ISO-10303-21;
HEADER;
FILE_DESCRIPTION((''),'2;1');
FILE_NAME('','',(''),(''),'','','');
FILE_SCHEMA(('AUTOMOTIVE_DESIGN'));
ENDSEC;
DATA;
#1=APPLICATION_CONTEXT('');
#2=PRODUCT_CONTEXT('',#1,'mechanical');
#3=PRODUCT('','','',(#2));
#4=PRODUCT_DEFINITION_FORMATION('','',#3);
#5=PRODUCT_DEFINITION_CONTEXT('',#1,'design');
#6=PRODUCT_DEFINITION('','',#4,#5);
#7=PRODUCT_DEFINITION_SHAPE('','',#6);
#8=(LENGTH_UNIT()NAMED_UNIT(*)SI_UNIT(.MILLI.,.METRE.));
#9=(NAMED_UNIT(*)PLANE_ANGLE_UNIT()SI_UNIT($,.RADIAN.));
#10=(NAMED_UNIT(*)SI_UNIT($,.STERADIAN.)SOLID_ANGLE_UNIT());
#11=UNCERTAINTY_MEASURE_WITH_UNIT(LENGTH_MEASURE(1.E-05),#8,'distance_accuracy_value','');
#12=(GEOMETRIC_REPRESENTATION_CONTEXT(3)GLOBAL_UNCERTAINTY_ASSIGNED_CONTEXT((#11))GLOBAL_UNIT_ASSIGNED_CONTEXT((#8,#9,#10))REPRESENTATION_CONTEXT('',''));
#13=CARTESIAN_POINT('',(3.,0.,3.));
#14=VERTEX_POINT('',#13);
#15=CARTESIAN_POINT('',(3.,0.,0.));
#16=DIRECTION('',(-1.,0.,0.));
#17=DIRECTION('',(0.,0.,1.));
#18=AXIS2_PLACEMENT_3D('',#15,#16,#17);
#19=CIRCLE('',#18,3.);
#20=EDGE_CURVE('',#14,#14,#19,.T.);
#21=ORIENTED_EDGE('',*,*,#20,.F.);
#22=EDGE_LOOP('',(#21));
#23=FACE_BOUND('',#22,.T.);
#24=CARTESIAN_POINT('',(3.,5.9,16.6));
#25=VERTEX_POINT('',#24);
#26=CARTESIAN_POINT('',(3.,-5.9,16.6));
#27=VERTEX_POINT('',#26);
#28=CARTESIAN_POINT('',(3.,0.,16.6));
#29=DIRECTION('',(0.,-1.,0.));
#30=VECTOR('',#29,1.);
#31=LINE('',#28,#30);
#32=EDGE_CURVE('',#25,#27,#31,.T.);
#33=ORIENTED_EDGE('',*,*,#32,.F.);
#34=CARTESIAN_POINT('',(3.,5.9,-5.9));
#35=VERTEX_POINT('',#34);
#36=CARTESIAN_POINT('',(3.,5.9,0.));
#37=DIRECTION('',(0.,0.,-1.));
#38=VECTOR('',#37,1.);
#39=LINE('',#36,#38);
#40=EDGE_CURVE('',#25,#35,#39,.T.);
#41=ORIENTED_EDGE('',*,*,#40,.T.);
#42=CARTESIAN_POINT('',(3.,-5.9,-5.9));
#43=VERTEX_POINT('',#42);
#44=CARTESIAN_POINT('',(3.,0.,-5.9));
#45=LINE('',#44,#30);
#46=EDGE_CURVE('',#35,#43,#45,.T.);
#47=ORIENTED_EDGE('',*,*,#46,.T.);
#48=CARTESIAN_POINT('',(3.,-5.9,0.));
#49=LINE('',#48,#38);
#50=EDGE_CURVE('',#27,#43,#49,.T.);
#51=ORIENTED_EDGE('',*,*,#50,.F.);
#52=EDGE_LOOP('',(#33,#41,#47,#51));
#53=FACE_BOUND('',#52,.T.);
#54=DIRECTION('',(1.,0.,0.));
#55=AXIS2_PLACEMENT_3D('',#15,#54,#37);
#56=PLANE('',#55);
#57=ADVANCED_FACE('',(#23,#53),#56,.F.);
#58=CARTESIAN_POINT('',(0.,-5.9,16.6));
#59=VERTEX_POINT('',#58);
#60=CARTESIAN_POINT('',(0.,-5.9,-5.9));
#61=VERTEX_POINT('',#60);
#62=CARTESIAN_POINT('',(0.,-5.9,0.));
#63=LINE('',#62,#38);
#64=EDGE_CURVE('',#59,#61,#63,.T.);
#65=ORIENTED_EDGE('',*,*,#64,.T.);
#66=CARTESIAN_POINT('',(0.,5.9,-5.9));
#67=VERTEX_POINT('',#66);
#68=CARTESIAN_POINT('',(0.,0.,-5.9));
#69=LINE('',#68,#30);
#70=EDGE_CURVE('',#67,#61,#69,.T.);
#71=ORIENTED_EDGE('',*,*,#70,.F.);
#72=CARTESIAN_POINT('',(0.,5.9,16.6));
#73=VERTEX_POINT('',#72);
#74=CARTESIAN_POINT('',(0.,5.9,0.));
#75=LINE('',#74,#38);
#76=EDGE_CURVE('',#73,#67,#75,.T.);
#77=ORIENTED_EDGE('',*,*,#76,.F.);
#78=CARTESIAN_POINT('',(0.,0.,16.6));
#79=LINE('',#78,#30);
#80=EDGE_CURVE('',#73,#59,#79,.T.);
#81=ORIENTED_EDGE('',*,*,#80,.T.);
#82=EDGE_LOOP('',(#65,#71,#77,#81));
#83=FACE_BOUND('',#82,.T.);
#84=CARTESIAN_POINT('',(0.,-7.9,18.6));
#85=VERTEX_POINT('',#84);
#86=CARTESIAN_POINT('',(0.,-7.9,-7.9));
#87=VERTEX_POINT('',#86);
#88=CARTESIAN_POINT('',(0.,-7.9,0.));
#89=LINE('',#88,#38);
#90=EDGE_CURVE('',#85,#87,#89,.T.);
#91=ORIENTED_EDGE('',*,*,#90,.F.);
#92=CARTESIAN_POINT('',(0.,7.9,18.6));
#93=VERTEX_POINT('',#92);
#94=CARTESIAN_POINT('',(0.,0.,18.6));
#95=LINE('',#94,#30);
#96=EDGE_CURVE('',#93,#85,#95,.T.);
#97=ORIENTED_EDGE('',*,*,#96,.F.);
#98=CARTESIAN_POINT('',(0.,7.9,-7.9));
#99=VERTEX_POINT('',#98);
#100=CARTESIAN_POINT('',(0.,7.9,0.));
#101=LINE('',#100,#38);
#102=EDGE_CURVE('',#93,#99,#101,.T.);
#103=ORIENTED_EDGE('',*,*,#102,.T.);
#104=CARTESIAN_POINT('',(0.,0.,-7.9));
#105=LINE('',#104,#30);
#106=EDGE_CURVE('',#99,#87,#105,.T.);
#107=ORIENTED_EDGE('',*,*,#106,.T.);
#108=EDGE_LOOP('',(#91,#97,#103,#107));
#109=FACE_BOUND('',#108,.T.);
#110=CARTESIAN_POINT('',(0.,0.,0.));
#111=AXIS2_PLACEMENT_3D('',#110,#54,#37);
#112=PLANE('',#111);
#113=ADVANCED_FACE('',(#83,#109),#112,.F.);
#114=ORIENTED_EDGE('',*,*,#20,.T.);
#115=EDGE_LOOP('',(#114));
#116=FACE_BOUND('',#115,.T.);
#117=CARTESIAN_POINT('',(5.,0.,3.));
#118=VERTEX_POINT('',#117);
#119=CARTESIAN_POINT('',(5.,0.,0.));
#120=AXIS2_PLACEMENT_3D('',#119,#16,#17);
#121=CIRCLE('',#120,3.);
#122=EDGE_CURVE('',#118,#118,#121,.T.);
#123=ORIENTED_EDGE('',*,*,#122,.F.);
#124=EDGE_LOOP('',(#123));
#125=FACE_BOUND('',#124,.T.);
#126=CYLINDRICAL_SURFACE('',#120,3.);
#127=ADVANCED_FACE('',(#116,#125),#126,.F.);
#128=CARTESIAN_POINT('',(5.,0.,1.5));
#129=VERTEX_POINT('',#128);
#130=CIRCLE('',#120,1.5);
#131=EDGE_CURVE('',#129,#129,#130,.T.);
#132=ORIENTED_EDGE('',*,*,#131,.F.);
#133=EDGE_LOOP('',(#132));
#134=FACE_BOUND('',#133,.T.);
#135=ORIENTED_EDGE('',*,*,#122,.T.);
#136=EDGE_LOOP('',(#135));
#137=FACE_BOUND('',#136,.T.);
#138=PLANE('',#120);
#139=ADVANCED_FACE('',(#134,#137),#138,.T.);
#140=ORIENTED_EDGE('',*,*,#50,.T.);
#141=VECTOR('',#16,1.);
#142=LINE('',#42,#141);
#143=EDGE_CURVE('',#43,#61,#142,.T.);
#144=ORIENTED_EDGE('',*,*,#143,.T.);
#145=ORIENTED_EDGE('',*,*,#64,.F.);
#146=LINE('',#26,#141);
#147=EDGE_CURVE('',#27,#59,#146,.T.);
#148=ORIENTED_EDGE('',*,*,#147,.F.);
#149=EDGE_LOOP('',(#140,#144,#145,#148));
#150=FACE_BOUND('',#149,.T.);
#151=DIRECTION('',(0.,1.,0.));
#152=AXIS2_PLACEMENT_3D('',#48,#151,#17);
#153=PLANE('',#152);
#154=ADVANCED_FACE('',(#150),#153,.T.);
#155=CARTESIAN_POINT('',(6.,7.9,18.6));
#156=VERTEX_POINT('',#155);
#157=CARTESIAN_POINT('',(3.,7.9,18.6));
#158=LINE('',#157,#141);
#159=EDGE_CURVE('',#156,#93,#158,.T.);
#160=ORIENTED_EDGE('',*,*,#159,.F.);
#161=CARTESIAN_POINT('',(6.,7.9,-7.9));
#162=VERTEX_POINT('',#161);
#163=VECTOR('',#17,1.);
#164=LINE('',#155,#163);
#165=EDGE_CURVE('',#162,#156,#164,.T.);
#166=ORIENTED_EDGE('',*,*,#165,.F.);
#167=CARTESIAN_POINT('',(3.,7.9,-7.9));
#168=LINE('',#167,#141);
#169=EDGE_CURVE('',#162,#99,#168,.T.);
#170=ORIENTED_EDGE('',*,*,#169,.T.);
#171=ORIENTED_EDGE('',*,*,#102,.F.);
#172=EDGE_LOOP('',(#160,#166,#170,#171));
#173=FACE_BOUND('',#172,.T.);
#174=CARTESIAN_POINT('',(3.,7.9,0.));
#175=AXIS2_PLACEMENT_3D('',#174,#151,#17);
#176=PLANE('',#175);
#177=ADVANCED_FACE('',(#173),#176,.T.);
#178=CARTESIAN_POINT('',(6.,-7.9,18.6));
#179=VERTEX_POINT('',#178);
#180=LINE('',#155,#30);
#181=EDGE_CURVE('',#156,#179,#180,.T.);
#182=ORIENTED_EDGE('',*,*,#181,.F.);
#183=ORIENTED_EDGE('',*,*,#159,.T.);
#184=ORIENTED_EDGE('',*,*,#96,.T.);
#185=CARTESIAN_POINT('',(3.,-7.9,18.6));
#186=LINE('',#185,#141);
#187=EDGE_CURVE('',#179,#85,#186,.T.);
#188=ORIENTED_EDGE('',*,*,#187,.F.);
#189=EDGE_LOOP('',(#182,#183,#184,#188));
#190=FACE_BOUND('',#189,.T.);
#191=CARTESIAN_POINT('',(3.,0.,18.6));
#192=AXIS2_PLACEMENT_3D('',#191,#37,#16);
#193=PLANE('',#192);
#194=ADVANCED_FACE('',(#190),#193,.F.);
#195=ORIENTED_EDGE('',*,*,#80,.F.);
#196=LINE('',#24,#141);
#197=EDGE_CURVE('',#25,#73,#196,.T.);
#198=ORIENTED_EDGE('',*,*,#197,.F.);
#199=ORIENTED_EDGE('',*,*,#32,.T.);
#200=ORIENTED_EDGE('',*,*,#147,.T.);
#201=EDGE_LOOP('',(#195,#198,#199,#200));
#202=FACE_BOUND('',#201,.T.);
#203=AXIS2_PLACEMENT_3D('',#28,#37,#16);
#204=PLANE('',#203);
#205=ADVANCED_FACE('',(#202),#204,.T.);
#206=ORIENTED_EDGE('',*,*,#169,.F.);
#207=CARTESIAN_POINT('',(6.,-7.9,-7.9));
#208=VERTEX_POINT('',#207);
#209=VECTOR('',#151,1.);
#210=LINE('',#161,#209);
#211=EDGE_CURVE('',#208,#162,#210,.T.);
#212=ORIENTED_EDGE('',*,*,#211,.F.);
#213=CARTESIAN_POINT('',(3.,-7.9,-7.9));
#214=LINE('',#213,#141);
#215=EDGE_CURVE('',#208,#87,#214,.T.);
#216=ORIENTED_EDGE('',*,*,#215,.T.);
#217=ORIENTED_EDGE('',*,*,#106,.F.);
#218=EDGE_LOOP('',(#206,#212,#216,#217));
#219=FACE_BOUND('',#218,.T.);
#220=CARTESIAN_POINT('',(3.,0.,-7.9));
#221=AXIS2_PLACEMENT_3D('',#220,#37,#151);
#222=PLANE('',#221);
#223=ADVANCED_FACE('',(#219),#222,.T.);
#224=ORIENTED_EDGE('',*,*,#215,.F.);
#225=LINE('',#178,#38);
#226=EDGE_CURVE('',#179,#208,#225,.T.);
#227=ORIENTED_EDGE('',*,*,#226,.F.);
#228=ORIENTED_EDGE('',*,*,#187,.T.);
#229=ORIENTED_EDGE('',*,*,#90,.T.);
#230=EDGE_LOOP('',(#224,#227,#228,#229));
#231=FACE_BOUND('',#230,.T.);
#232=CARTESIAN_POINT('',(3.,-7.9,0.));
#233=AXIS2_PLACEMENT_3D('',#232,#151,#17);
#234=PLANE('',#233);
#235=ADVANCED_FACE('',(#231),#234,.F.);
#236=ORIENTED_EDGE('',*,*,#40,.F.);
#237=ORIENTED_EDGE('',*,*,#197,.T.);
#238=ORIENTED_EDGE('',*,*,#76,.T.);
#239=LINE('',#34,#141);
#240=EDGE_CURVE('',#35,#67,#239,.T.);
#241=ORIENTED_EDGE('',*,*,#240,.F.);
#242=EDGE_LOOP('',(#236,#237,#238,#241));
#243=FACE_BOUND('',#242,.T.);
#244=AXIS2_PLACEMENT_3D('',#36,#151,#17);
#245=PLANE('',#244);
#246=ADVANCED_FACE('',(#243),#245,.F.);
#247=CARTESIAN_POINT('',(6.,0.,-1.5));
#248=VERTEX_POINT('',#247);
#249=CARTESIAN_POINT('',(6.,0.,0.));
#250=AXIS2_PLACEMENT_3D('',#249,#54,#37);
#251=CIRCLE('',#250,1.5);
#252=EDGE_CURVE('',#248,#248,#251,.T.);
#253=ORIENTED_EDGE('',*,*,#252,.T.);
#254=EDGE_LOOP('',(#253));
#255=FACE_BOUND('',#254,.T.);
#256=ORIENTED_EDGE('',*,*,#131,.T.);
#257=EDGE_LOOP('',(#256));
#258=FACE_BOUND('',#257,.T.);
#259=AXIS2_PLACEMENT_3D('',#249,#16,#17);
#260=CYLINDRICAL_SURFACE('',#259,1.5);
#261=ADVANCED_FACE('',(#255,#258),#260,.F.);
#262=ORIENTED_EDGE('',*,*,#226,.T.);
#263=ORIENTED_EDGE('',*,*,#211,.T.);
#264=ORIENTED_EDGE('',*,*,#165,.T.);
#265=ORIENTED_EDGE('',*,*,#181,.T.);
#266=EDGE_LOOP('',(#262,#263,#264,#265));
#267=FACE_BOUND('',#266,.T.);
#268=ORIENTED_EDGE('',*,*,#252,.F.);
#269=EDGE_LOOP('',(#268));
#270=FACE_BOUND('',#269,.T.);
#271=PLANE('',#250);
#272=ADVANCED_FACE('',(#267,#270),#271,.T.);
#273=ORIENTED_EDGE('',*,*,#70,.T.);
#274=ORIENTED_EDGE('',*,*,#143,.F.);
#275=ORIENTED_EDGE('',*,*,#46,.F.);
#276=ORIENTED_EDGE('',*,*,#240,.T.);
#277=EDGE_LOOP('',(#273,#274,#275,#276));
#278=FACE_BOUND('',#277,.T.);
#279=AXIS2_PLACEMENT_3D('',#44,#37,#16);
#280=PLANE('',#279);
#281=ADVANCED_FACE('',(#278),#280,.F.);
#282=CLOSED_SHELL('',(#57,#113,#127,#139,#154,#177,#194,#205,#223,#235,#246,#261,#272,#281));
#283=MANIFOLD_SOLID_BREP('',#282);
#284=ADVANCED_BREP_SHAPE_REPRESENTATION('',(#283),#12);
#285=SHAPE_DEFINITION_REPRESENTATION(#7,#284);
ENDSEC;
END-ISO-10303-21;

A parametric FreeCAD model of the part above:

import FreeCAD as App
import Part
import Sketcher
from FreeCAD import Vector


def add_polygon(sketch, points):
    """Adds a closed chain of lines whose ends are joined by coincident constraints."""
    first, n = sketch.GeometryCount, len(points)
    for a, b in zip(points, points[1:] + points[:1]):
        sketch.addGeometry(Part.LineSegment(App.Vector(*a, 0), App.Vector(*b, 0)), False)
    for i in range(n):
        sketch.addConstraint(Sketcher.Constraint("Coincident", first + i, 2, first + (i + 1) % n, 1))

doc = App.newDocument("Part")
params = doc.addObject("Spreadsheet::Sheet", "Params")
for row, (alias, value) in enumerate([
    ("sketch1_width", "15.8 mm"),
    ("sketch1_width2", "11.8 mm"),
    ("sketch1_height", "26.5 mm"),
    ("sketch1_height2", "22.5 mm"),
    ("pad1_length", "3 mm"),
    ("sketch2_diameter", "3 mm"),
    ("sketch2_width", "15.8 mm"),
    ("sketch2_height", "26.5 mm"),
    ("pad2_length", "3 mm"),
    ("sketch3_diameter", "6 mm"),
    ("pocket1_length", "2 mm"),
], start=1):
    params.set(f"A{row}", alias)
    params.set(f"B{row}", "=" + value)
    params.setAlias(f"B{row}", alias)

body = doc.addObject("PartDesign::Body", "Body")

sketch1 = body.newObject("Sketcher::SketchObject", "Sketch")
sketch1.AttachmentSupport = (doc.getObject("YZ_Plane"), [""])
sketch1.MapMode = "FlatFace"
add_polygon(sketch1, [(7.9, 18.6), (-7.9, 18.6), (-7.9, -7.9), (7.9, -7.9)])
add_polygon(sketch1, [(-5.9, -5.9), (-5.9, 16.6), (5.9, 16.6), (5.9, -5.9)])
sketch1.addConstraint([
    Sketcher.Constraint("Horizontal", 0),
    Sketcher.Constraint("Vertical", 1),
    Sketcher.Constraint("Horizontal", 2),
    Sketcher.Constraint("Vertical", 3),
    Sketcher.Constraint("Vertical", 4),
    Sketcher.Constraint("Horizontal", 5),
    Sketcher.Constraint("Vertical", 6),
    Sketcher.Constraint("Horizontal", 7),
    Sketcher.Constraint("DistanceX", 0, 2, 0, 1, 15.8),
    Sketcher.Constraint("DistanceX", 5, 1, 5, 2, 11.8),
    Sketcher.Constraint("DistanceY", 1, 2, 1, 1, 26.5),
    Sketcher.Constraint("DistanceY", 4, 1, 4, 2, 22.5),
    Sketcher.Constraint("DistanceX", 0, 2, 4, 2, 2.0),
    Sketcher.Constraint("DistanceY", 4, 2, 0, 2, 2.0),
    Sketcher.Constraint("DistanceX", 0, 2, -1, 1, 7.9),
    Sketcher.Constraint("DistanceY", -1, 1, 0, 2, 18.6),
])
sketch1.setExpression("Constraints[16]", "Params.sketch1_width")
sketch1.setExpression("Constraints[17]", "Params.sketch1_width2")
sketch1.setExpression("Constraints[18]", "Params.sketch1_height")
sketch1.setExpression("Constraints[19]", "Params.sketch1_height2")
pad1 = body.newObject("PartDesign::Pad", "Pad")
pad1.Profile = sketch1
pad1.setExpression("Length", "Params.pad1_length")

sketch2 = body.newObject("Sketcher::SketchObject", "Sketch001")
sketch2.AttachmentSupport = (doc.getObject("YZ_Plane"), [""])
sketch2.MapMode = "FlatFace"
sketch2.AttachmentOffset = App.Placement(Vector(0, 0, 3), App.Rotation())
add_polygon(sketch2, [(7.9, 18.6), (-7.9, 18.6), (-7.9, -7.9), (7.9, -7.9)])
sketch2.addGeometry(Part.Circle(Vector(0, 0, 0), Vector(0, 0, 1), 1.5), False)
sketch2.addConstraint([
    Sketcher.Constraint("Horizontal", 0),
    Sketcher.Constraint("Vertical", 1),
    Sketcher.Constraint("Horizontal", 2),
    Sketcher.Constraint("Vertical", 3),
    Sketcher.Constraint("Coincident", 4, 3, -1, 1),
    Sketcher.Constraint("Diameter", 4, 3.0),
    Sketcher.Constraint("DistanceX", 0, 2, 0, 1, 15.8),
    Sketcher.Constraint("DistanceY", 1, 2, 1, 1, 26.5),
    Sketcher.Constraint("DistanceX", 0, 2, -1, 1, 7.9),
    Sketcher.Constraint("DistanceY", -1, 1, 0, 2, 18.6),
])
sketch2.setExpression("Constraints[9]", "Params.sketch2_diameter")
sketch2.setExpression("Constraints[10]", "Params.sketch2_width")
sketch2.setExpression("Constraints[11]", "Params.sketch2_height")
pad2 = body.newObject("PartDesign::Pad", "Pad001")
pad2.Profile = sketch2
pad2.setExpression("Length", "Params.pad2_length")

sketch3 = body.newObject("Sketcher::SketchObject", "Sketch002")
sketch3.AttachmentSupport = (doc.getObject("YZ_Plane"), [""])
sketch3.MapMode = "FlatFace"
sketch3.AttachmentOffset = App.Placement(Vector(0, 0, 3), App.Rotation())
sketch3.addGeometry(Part.Circle(Vector(0, 0, 0), Vector(0, 0, 1), 3), False)
sketch3.addConstraint([
    Sketcher.Constraint("Coincident", 0, 3, -1, 1),
    Sketcher.Constraint("Diameter", 0, 6.0),
])
sketch3.setExpression("Constraints[1]", "Params.sketch3_diameter")
pocket1 = body.newObject("PartDesign::Pocket", "Pocket")
pocket1.Profile = sketch3
pocket1.setExpression("Length", "Params.pocket1_length")
pocket1.Reversed = True

doc.recompute()
